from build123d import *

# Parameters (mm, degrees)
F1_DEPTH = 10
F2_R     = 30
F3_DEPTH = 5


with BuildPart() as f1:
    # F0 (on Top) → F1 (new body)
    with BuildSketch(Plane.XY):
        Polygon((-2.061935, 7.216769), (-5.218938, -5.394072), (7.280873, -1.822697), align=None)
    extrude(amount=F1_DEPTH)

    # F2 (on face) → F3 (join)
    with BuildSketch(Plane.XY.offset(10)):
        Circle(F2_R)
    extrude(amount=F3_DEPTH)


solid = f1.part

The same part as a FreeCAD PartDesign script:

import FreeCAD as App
import Part
import Sketcher
Q = App.Units.Quantity

doc = App.newDocument("Part")
body = doc.addObject("PartDesign::Body", "Body")

# Sketch on XY plane
sketch1 = doc.addObject("Sketcher::SketchObject", "Sketch")
body.addObject(sketch1)
sketch1.AttachmentSupport = (doc.XY_Plane, [""])
sketch1.MapMode = "FlatFace"
sketch1.addGeometry([
    Part.LineSegment(App.Vector(-2, 7, 0), App.Vector(-5, -5, 0)),
    Part.LineSegment(App.Vector(-5, -5, 0), App.Vector(7, -2, 0)),
    Part.LineSegment(App.Vector(7, -2, 0), App.Vector(-2, 7, 0)),
], False)
sketch1.addConstraint([
    Sketcher.Constraint("Coincident", 0, 2, 1, 1),
    Sketcher.Constraint("Coincident", 1, 2, 2, 1),
    Sketcher.Constraint("Coincident", 2, 2, 0, 1),
    Sketcher.Constraint("Equal", 0, 1),
    Sketcher.Constraint("Equal", 1, 2),
    Sketcher.Constraint("Distance", 0, Q("12.999999 mm")),
    Sketcher.Constraint("DistanceY", -1, 1, 2, 2, Q("7.216769 mm")),
    Sketcher.Constraint("DistanceX", 0, 2, 1, 2, Q("12.499811 mm")),
    Sketcher.Constraint("DistanceX", 0, 2, -1, 1, Q("5.218938 mm")),
])
pad1 = doc.addObject("PartDesign::Pad", "Pad")
body.addObject(pad1)
pad1.Profile = sketch1
pad1.Length = 10

# Sketch on XY plane
sketch2 = doc.addObject("Sketcher::SketchObject", "Sketch001")
body.addObject(sketch2)
sketch2.AttachmentSupport = (doc.XY_Plane, [""])
sketch2.MapMode = "FlatFace"
sketch2.AttachmentOffset = App.Placement(App.Vector(0, 0, 10), App.Rotation())
sketch2.addGeometry(Part.Circle(App.Vector(0, 0, 0), App.Vector(0, 0, 1), 30), False)
sketch2.addConstraint([
    Sketcher.Constraint("Coincident", 0, 3, -1, 1),
    Sketcher.Constraint("Diameter", 0, Q("60 mm")),
])
pad2 = doc.addObject("PartDesign::Pad", "Pad001")
body.addObject(pad2)
pad2.Profile = sketch2
pad2.Length = 5

doc.recompute()
